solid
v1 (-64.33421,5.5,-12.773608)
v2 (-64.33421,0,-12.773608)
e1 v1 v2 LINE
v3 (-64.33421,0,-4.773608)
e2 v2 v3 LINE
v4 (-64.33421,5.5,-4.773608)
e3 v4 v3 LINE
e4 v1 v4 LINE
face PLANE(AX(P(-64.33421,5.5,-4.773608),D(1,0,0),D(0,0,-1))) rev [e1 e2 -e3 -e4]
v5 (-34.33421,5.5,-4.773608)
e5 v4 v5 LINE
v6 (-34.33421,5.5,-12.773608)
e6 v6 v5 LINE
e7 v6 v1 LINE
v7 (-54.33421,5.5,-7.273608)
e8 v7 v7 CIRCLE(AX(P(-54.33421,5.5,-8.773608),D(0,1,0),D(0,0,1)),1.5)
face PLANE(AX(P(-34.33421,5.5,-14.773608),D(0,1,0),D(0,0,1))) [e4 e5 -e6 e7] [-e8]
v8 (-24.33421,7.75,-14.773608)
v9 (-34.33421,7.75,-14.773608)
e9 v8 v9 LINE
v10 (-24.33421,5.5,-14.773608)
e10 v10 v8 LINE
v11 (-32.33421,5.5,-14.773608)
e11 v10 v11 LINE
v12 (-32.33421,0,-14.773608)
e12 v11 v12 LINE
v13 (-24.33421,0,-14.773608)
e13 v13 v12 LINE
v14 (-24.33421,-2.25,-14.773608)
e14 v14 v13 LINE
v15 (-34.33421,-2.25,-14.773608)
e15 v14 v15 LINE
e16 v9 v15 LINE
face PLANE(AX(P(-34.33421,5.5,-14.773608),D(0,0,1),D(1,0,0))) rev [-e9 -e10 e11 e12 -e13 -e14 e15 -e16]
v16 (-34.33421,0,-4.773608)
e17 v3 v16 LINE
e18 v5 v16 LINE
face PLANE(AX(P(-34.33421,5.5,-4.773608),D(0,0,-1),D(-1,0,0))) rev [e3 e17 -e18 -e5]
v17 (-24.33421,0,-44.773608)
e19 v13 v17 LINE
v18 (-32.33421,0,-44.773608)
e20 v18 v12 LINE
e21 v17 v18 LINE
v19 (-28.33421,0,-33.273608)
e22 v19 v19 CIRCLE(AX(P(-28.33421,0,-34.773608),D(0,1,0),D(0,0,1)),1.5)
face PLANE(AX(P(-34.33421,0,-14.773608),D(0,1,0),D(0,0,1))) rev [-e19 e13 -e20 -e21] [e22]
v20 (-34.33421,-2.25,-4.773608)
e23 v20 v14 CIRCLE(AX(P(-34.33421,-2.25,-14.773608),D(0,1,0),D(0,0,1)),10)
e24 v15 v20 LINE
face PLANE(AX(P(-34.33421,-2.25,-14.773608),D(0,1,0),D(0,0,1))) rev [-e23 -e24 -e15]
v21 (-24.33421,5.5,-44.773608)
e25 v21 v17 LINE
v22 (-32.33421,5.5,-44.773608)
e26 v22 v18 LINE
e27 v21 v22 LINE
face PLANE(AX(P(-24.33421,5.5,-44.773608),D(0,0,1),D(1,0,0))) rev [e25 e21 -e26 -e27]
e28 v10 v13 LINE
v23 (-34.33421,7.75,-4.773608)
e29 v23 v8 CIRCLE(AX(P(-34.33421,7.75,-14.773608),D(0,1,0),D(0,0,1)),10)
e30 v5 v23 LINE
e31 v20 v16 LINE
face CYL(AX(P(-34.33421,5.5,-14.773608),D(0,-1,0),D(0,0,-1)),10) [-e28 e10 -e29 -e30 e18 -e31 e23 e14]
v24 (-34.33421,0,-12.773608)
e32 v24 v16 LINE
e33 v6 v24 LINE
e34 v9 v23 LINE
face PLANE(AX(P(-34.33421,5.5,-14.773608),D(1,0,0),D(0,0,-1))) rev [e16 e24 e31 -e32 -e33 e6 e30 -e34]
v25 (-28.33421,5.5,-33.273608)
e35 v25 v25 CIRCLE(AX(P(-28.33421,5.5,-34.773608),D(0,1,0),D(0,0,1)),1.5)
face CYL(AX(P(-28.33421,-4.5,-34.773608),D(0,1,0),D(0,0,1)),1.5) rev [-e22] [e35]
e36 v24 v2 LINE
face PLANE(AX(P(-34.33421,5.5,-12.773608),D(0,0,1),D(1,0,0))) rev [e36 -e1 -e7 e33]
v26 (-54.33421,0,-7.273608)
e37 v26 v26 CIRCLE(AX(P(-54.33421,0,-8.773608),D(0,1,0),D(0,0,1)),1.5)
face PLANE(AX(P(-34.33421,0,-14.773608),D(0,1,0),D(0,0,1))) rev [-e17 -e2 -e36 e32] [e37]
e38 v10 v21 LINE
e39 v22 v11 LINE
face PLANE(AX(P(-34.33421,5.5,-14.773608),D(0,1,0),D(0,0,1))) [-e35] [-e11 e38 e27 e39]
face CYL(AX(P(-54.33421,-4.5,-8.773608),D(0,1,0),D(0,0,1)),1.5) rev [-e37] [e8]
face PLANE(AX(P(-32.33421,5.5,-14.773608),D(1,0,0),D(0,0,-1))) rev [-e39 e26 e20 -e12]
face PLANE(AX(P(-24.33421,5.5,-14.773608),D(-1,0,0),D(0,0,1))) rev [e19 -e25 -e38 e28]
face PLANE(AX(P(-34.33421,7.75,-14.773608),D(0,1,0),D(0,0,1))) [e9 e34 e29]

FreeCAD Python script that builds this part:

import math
import FreeCAD as App
import Part
import Sketcher

doc = App.newDocument("Part")
body = doc.addObject("PartDesign::Body", "Body")

sketch1 = doc.addObject("Sketcher::SketchObject", "Sketch")
body.addObject(sketch1)
sketch1.AttachmentSupport = (doc.XZ_Plane, [""])
sketch1.MapMode = "FlatFace"
sketch1.addGeometry(Part.LineSegment(App.Vector(-32.3, -14.8, 0), App.Vector(-34.3, -14.8, 0)), False)
sketch1.addGeometry(Part.LineSegment(App.Vector(-34.3, -14.8, 0), App.Vector(-34.3, -12.8, 0)), False)
sketch1.addGeometry(Part.LineSegment(App.Vector(-34.3, -12.8, 0), App.Vector(-64.3, -12.8, 0)), False)
sketch1.addGeometry(Part.LineSegment(App.Vector(-64.3, -12.8, 0), App.Vector(-64.3, -4.8, 0)), False)
sketch1.addGeometry(Part.LineSegment(App.Vector(-64.3, -4.8, 0), App.Vector(-34.3, -4.8, 0)), False)
sketch1.addGeometry(Part.ArcOfCircle(Part.Circle(App.Vector(-34.3, -14.8, 0), App.Vector(0, 0, 1), 10), math.radians(0), math.radians(90)), False)
sketch1.addGeometry(Part.LineSegment(App.Vector(-24.3, -14.8, 0), App.Vector(-24.3, -44.8, 0)), False)
sketch1.addGeometry(Part.LineSegment(App.Vector(-24.3, -44.8, 0), App.Vector(-32.3, -44.8, 0)), False)
sketch1.addGeometry(Part.LineSegment(App.Vector(-32.3, -44.8, 0), App.Vector(-32.3, -14.8, 0)), False)
sketch1.addConstraint(Sketcher.Constraint("Coincident", 0, 2, 1, 1))
sketch1.addConstraint(Sketcher.Constraint("Coincident", 1, 2, 2, 1))
sketch1.addConstraint(Sketcher.Constraint("Coincident", 2, 2, 3, 1))
sketch1.addConstraint(Sketcher.Constraint("Coincident", 3, 2, 4, 1))
sketch1.addConstraint(Sketcher.Constraint("Tangent", 4, 2, 5, 2))
sketch1.addConstraint(Sketcher.Constraint("Tangent", 5, 1, 6, 1))
sketch1.addConstraint(Sketcher.Constraint("Coincident", 6, 2, 7, 1))
sketch1.addConstraint(Sketcher.Constraint("Coincident", 7, 2, 8, 1))
sketch1.addConstraint(Sketcher.Constraint("Coincident", 8, 2, 0, 1))
sketch1.addConstraint(Sketcher.Constraint("Horizontal", 0))
sketch1.addConstraint(Sketcher.Constraint("Vertical", 1))
sketch1.addConstraint(Sketcher.Constraint("Horizontal", 2))
sketch1.addConstraint(Sketcher.Constraint("Vertical", 3))
sketch1.addConstraint(Sketcher.Constraint("Horizontal", 4))
sketch1.addConstraint(Sketcher.Constraint("Vertical", 6))
sketch1.addConstraint(Sketcher.Constraint("Horizontal", 7))
sketch1.addConstraint(Sketcher.Constraint("Vertical", 8))
sketch1.addConstraint(Sketcher.Constraint("Coincident", 0, 2, 5, 3))
sketch1.addConstraint(Sketcher.Constraint("Equal", 0, 1))
sketch1.addConstraint(Sketcher.Constraint("Equal", 4, 6))
sketch1.addConstraint(Sketcher.Constraint("Radius", 5, 10.0))
sketch1.addConstraint(Sketcher.Constraint("DistanceX", 0, 2, 0, 1, 2.0))
sketch1.addConstraint(Sketcher.Constraint("DistanceX", 2, 2, 2, 1, 30.0))
sketch1.addConstraint(Sketcher.Constraint("DistanceX", 5, 3, -1, 1, 34.33421))
sketch1.addConstraint(Sketcher.Constraint("DistanceY", 5, 3, -1, 1, 14.773608))
pad1 = doc.addObject("PartDesign::Pad", "Pad")
body.addObject(pad1)
pad1.Profile = sketch1
pad1.Length = 5.5
pad1.Reversed = True

sketch2 = doc.addObject("Sketcher::SketchObject", "Sketch001")
body.addObject(sketch2)
sketch2.AttachmentSupport = (doc.XZ_Plane, [""])
sketch2.MapMode = "FlatFace"
sketch2.AttachmentOffset = App.Placement(App.Vector(0, 0, -5.5), App.Rotation())
sketch2.addGeometry(Part.LineSegment(App.Vector(-24, -15, 0), App.Vector(-34, -15, 0)), False)
sketch2.addGeometry(Part.LineSegment(App.Vector(-34, -15, 0), App.Vector(-34, -5, 0)), False)
sketch2.addGeometry(Part.ArcOfCircle(Part.Circle(App.Vector(-34, -15, 0), App.Vector(0, 0, 1), 10), math.radians(0), math.radians(90)), False)
sketch2.addConstraint(Sketcher.Constraint("Coincident", 0, 2, 1, 1))
sketch2.addConstraint(Sketcher.Constraint("Coincident", 1, 2, 2, 2))
sketch2.addConstraint(Sketcher.Constraint("Coincident", 2, 1, 0, 1))
sketch2.addConstraint(Sketcher.Constraint("Horizontal", 0))
sketch2.addConstraint(Sketcher.Constraint("Vertical", 1))
sketch2.addConstraint(Sketcher.Constraint("Coincident", 0, 2, 2, 3))
sketch2.addConstraint(Sketcher.Constraint("Radius", 2, 10.0))
sketch2.addConstraint(Sketcher.Constraint("DistanceX", 2, 3, -1, 1, 34.33421))
sketch2.addConstraint(Sketcher.Constraint("DistanceY", 2, 3, -1, 1, 14.773608))
pad2 = doc.addObject("PartDesign::Pad", "Pad001")
body.addObject(pad2)
pad2.Profile = sketch2
pad2.Type = "TwoLengths"
pad2.Length = 2.25
pad2.Length2 = 7.75
pad2.Reversed = True

sketch3 = doc.addObject("Sketcher::SketchObject", "Sketch002")
body.addObject(sketch3)
sketch3.AttachmentSupport = (doc.XZ_Plane, [""])
sketch3.MapMode = "FlatFace"
sketch3.AttachmentOffset = App.Placement(App.Vector(0, 0, -5.5), App.Rotation())
sketch3.addGeometry(Part.Circle(App.Vector(-54.3, -8.8, 0), App.Vector(0, 0, 1), 1.5), False)
sketch3.addGeometry(Part.Circle(App.Vector(-28.3, -34.8, 0), App.Vector(0, 0, 1), 1.5), False)
sketch3.addConstraint(Sketcher.Constraint("Equal", 0, 1))
sketch3.addConstraint(Sketcher.Constraint("Diameter", 0, 3.0))
sketch3.addConstraint(Sketcher.Constraint("DistanceX", 0, 3, 1, 3, 26.0))
sketch3.addConstraint(Sketcher.Constraint("DistanceY", 1, 3, 0, 3, 26.0))
sketch3.addConstraint(Sketcher.Constraint("DistanceX", 0, 3, -1, 1, 54.33421))
sketch3.addConstraint(Sketcher.Constraint("DistanceY", 0, 3, -1, 1, 8.773608))
pocket1 = doc.addObject("PartDesign::Pocket", "Pocket")
body.addObject(pocket1)
pocket1.Profile = sketch3
pocket1.Length = 10
pocket1.Reversed = True

doc.recompute()
